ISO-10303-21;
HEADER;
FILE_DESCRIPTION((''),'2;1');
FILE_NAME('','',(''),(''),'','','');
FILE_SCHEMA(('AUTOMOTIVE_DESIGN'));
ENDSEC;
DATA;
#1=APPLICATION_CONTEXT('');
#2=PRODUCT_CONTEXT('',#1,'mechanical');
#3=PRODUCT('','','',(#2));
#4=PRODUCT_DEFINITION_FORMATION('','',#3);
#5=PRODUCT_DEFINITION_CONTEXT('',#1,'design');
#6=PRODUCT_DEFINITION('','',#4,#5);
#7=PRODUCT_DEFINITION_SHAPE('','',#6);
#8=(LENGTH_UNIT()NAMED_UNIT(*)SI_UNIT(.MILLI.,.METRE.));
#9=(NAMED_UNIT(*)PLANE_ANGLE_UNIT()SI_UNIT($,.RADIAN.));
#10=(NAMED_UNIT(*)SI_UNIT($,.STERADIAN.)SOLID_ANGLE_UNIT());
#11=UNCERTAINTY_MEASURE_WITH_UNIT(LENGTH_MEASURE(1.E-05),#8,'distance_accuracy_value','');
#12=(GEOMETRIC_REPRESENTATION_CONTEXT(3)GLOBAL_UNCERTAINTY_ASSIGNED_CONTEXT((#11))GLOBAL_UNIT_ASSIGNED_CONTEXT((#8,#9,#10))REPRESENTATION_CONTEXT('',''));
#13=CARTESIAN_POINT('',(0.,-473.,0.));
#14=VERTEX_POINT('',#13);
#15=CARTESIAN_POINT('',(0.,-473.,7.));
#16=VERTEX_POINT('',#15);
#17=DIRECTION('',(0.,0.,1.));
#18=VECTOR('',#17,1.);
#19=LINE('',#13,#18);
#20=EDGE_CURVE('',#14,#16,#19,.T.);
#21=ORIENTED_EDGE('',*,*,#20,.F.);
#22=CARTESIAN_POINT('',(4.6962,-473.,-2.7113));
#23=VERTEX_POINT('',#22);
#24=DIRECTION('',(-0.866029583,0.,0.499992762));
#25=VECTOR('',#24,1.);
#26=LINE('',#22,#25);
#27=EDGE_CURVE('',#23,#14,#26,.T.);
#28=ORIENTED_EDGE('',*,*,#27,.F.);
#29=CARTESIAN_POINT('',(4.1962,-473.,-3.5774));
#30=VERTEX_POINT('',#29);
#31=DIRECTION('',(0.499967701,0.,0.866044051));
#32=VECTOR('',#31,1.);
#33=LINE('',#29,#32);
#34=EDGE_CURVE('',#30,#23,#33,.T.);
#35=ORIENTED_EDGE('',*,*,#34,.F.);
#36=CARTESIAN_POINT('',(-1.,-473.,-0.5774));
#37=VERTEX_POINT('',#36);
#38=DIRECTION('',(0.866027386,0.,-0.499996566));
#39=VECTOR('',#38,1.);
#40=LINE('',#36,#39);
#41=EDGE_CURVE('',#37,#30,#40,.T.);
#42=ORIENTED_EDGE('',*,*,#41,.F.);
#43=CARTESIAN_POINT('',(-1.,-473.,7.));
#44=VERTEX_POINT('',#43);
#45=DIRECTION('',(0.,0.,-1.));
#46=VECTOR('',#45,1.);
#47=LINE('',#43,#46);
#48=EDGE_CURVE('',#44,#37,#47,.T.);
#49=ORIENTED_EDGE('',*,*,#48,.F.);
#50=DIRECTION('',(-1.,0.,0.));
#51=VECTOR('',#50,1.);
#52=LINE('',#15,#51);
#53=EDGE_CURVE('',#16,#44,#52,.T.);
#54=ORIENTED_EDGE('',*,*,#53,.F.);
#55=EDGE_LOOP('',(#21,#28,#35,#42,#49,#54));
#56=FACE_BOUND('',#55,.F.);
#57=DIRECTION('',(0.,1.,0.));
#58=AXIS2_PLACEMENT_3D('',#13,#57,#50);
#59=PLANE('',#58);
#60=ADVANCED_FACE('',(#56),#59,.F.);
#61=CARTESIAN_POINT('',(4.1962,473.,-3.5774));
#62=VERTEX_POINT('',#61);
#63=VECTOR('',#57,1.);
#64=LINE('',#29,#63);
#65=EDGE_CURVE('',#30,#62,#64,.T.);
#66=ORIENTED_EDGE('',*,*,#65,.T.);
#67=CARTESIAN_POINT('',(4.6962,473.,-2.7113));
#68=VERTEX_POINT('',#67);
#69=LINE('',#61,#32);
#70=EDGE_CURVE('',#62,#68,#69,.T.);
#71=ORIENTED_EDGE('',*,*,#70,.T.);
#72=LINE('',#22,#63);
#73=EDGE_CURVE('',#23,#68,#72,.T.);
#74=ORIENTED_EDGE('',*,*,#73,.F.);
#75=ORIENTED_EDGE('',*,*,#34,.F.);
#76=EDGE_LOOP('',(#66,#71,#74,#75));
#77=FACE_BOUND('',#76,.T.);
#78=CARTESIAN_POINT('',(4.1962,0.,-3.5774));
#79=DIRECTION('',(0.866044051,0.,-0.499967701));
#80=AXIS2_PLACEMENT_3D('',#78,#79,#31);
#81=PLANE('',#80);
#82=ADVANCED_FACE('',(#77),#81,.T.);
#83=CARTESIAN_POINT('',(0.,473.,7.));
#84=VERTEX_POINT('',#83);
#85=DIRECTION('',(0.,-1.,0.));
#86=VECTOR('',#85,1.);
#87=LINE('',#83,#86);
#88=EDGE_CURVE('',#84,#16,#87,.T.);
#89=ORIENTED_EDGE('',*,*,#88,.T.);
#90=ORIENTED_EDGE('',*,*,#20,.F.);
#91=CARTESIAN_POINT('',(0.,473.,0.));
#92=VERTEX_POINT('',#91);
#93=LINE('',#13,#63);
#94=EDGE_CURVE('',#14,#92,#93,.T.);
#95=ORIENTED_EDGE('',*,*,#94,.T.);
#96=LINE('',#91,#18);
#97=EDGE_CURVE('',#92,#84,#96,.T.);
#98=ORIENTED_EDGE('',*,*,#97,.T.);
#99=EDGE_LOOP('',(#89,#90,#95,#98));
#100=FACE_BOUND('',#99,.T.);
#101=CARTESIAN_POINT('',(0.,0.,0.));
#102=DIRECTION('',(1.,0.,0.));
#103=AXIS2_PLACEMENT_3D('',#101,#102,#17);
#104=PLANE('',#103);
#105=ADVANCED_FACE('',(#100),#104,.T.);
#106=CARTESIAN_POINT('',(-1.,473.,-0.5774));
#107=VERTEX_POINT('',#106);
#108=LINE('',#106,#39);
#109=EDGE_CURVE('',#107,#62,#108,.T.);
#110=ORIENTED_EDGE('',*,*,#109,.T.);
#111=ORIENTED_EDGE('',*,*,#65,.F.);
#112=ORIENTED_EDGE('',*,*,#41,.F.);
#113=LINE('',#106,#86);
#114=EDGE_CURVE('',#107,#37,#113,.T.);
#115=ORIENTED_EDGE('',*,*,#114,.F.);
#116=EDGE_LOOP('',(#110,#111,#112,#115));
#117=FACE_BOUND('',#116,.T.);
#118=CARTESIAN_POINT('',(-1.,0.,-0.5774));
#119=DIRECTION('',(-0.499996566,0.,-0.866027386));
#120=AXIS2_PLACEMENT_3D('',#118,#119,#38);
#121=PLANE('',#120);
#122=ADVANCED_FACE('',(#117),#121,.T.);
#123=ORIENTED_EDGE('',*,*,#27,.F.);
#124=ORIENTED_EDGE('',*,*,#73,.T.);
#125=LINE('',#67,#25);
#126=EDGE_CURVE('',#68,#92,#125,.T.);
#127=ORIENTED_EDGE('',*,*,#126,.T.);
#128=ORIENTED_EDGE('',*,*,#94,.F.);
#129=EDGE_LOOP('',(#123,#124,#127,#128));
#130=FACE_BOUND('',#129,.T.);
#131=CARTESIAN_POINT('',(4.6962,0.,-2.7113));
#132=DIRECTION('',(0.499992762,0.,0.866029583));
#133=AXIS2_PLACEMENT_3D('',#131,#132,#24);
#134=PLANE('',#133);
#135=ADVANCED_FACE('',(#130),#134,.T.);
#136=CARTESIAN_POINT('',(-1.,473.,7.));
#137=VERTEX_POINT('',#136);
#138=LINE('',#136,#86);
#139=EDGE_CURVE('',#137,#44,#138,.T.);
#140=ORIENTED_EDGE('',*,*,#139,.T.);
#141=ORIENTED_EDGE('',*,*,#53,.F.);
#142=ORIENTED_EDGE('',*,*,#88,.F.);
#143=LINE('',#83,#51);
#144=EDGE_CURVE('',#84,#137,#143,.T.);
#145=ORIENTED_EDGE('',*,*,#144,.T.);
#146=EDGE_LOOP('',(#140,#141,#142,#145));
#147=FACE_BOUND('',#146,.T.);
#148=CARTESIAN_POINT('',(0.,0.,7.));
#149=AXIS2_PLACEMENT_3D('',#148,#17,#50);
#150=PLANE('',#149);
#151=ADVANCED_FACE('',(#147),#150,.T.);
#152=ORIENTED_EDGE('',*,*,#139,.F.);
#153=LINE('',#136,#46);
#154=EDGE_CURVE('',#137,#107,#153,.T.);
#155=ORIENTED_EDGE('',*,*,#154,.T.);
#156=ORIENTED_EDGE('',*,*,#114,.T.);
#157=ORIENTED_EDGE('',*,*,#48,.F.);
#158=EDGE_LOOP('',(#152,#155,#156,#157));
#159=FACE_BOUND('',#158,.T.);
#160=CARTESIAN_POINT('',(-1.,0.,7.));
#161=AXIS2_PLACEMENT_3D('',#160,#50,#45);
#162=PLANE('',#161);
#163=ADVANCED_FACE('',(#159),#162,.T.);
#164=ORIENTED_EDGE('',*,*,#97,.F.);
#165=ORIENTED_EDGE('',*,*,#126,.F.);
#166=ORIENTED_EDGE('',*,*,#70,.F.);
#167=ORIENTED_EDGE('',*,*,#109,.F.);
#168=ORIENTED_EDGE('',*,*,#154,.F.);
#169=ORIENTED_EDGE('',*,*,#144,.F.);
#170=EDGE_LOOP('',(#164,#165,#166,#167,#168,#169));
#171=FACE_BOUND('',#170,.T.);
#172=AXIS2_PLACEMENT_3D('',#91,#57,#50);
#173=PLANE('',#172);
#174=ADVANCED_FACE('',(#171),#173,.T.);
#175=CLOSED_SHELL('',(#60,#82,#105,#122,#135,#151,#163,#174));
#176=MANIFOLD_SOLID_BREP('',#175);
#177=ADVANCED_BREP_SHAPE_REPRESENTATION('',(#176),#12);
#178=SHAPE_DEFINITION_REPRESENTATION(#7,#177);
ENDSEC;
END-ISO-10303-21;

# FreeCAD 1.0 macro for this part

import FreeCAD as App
import Part
import Sketcher

V = App.Vector
Q = App.Units.Quantity


def add_polygon(sketch, points):
    """Adds a closed chain of lines whose ends are joined by coincident constraints."""
    first, n = sketch.GeometryCount, len(points)
    for a, b in zip(points, points[1:] + points[:1]):
        sketch.addGeometry(Part.LineSegment(App.Vector(*a, 0), App.Vector(*b, 0)), False)
    for i in range(n):
        sketch.addConstraint(Sketcher.Constraint("Coincident", first + i, 2, first + (i + 1) % n, 1))

doc = App.newDocument("Part")
body = doc.addObject("PartDesign::Body", "Body")

# Sketch on XZ plane
sketch1 = body.newObject("Sketcher::SketchObject", "Sketch")
sketch1.AttachmentSupport = (doc.getObject("XZ_Plane"), [""])
sketch1.MapMode = "FlatFace"
add_polygon(sketch1, [(0, 7), (0, 0), (4.6962, -2.7113), (4.1962, -3.5774), (-1, -0.5774), (-1, 7)])  # lines 0-5
sketch1.addConstraint(Sketcher.Constraint("Vertical", 0))
sketch1.addConstraint(Sketcher.Constraint("Vertical", 4))
sketch1.addConstraint(Sketcher.Constraint("Horizontal", 5))
sketch1.addConstraint(Sketcher.Constraint("Coincident", 0, 2, -1, 1))
sketch1.addConstraint(Sketcher.Constraint("Perpendicular", 1, 2))
sketch1.addConstraint(Sketcher.Constraint("Perpendicular", 2, 3))
sketch1.addConstraint(Sketcher.Constraint("DistanceX", 5, 1, 5, 2, Q("1 mm")))
sketch1.addConstraint(Sketcher.Constraint("DistanceY", 0, 2, 0, 1, Q("7 mm")))
sketch1.addConstraint(Sketcher.Constraint("Distance", 2, Q("1 mm")))
sketch1.addConstraint(Sketcher.Constraint("Distance", 3, Q("6 mm")))
sketch1.addConstraint(Sketcher.Constraint("Angle", 1, Q("-29.9995 deg")))
pad1 = body.newObject("PartDesign::Pad", "Pad")
pad1.Profile = sketch1
pad1.Length = 946
pad1.Midplane = True

doc.recompute()
